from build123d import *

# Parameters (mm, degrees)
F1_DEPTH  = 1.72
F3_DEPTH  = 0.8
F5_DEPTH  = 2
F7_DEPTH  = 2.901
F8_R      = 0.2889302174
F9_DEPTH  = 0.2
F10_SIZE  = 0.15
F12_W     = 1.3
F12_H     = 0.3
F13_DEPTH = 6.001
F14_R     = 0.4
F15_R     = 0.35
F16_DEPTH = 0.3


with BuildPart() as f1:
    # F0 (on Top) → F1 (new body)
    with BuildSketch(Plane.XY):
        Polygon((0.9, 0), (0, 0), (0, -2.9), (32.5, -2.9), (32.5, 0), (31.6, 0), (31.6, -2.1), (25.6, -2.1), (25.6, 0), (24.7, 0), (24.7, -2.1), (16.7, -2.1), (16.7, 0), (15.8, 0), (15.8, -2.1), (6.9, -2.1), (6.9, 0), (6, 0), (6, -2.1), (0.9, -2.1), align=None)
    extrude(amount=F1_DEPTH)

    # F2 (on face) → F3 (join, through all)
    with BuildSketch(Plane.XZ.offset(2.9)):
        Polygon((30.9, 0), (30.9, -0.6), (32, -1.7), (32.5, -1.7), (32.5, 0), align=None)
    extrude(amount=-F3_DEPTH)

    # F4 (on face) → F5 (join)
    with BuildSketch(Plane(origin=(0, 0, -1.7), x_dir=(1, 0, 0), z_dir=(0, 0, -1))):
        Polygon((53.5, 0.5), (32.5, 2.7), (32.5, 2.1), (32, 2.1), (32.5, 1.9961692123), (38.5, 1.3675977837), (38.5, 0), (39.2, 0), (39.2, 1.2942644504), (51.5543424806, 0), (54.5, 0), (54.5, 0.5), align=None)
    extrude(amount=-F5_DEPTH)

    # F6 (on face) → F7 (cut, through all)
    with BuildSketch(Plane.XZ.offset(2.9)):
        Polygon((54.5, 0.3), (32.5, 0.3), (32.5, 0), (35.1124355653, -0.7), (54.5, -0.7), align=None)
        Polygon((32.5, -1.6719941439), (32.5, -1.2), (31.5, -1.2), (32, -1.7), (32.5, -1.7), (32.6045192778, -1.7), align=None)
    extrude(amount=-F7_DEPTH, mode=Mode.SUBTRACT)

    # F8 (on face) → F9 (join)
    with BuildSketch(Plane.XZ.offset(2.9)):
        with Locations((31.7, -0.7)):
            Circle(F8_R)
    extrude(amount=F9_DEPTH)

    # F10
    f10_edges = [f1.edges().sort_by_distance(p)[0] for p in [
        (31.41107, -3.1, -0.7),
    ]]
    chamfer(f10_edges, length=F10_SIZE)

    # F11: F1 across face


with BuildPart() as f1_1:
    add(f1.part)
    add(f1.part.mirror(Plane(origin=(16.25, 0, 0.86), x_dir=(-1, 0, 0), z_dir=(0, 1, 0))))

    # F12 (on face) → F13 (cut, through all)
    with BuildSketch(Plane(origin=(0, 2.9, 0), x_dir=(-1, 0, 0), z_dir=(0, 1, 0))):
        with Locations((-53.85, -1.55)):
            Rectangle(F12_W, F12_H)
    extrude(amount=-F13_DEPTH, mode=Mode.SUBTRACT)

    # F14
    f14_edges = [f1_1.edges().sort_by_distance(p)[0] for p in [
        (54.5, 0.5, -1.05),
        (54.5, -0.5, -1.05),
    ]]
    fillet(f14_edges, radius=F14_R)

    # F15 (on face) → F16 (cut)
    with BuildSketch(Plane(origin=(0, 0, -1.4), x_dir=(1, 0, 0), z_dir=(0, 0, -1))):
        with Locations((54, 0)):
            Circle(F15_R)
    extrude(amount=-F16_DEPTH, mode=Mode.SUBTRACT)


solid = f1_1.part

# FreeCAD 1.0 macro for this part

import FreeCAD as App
import Part
import Sketcher
Q = App.Units.Quantity


def edges_at(feature, points):
    """Names of the edges that pass closest to the given points."""
    edges = feature.Shape.Edges
    near = lambda p: min(range(len(edges)), key=lambda i: edges[i].distToShape(Part.Vertex(*p))[0])
    return sorted({f"Edge{near(p) + 1}" for p in points})


def add_polygon(sketch, points):
    """Adds a closed chain of lines whose ends are joined by coincident constraints."""
    first, n = sketch.GeometryCount, len(points)
    for a, b in zip(points, points[1:] + points[:1]):
        sketch.addGeometry(Part.LineSegment(App.Vector(*a, 0), App.Vector(*b, 0)), False)
    for i in range(n):
        sketch.addConstraint(Sketcher.Constraint("Coincident", first + i, 2, first + (i + 1) % n, 1))

doc = App.newDocument("Part")
body = doc.addObject("PartDesign::Body", "Body")

# Sketch on XY plane
sketch1 = body.newObject("Sketcher::SketchObject", "Sketch")
sketch1.AttachmentSupport = (doc.getObject("XY_Plane"), [""])
sketch1.MapMode = "FlatFace"
add_polygon(sketch1, [(0.9, 0), (0, 0), (0, -2.9), (32.5, -2.9), (32.5, 0), (31.6, 0), (31.6, -2.1), (25.6, -2.1), (25.6, 0), (24.7, 0), (24.7, -2.1), (16.7, -2.1), (16.7, 0), (15.8, 0), (15.8, -2.1), (6.9, -2.1), (6.9, 0), (6, 0), (6, -2.1), (0.9, -2.1)])  # lines 0-19
sketch1.addConstraint([
    Sketcher.Constraint("Horizontal", 0),
    Sketcher.Constraint("Vertical", 1),
    Sketcher.Constraint("Horizontal", 2),
    Sketcher.Constraint("Vertical", 3),
    Sketcher.Constraint("Horizontal", 4),
    Sketcher.Constraint("Vertical", 5),
    Sketcher.Constraint("Horizontal", 6),
    Sketcher.Constraint("Vertical", 7),
    Sketcher.Constraint("Horizontal", 8),
    Sketcher.Constraint("Vertical", 9),
    Sketcher.Constraint("Horizontal", 10),
    Sketcher.Constraint("Vertical", 11),
    Sketcher.Constraint("Horizontal", 12),
    Sketcher.Constraint("Vertical", 13),
    Sketcher.Constraint("Horizontal", 14),
    Sketcher.Constraint("Vertical", 15),
    Sketcher.Constraint("Horizontal", 16),
    Sketcher.Constraint("Vertical", 17),
    Sketcher.Constraint("Horizontal", 18),
    Sketcher.Constraint("Vertical", 19),
    Sketcher.Constraint("Coincident", 0, 2, -1, 1),
    Sketcher.Constraint("PointOnObject", 3, 2, -1),
    Sketcher.Constraint("PointOnObject", 7, 2, -1),
    Sketcher.Constraint("PointOnObject", 11, 2, -1),
    Sketcher.Constraint("PointOnObject", 15, 2, -1),
    Sketcher.Constraint("Horizontal", 6, 2, 9, 2),
    Sketcher.Constraint("Horizontal", 10, 2, 13, 2),
    Sketcher.Constraint("Horizontal", 14, 2, 17, 2),
    Sketcher.Constraint("Equal", 0, 4),
    Sketcher.Constraint("Equal", 4, 8),
    Sketcher.Constraint("Equal", 8, 12),
    Sketcher.Constraint("Equal", 12, 16),
    Sketcher.Constraint("DistanceX", 6, 2, 6, 1, 6.0),
    Sketcher.Constraint("DistanceX", 10, 2, 10, 1, 8.0),
    Sketcher.Constraint("DistanceX", 0, 2, 0, 1, 0.9),
    Sketcher.Constraint("DistanceX", 2, 1, 2, 2, 32.5),
    Sketcher.Constraint("DistanceX", 14, 2, 14, 1, 8.9),
    Sketcher.Constraint("DistanceY", 1, 2, 1, 1, 2.9),
    Sketcher.Constraint("DistanceY", 5, 2, 5, 1, 2.1),
])
pad1 = body.newObject("PartDesign::Pad", "Pad")
pad1.Profile = sketch1
pad1.Length = 1.72

# Sketch on XZ plane
sketch2 = body.newObject("Sketcher::SketchObject", "Sketch001")
sketch2.AttachmentSupport = (doc.getObject("XZ_Plane"), [""])
sketch2.MapMode = "FlatFace"
sketch2.AttachmentOffset = App.Placement(App.Vector(0, 0, 2.9), App.Rotation())
add_polygon(sketch2, [(30.9, 0), (30.9, -0.6), (32, -1.7), (32.5, -1.7), (32.5, 0)])  # lines 0-4
sketch2.addConstraint([
    Sketcher.Constraint("Vertical", 0),
    Sketcher.Constraint("Horizontal", 2),
    Sketcher.Constraint("Vertical", 3),
    Sketcher.Constraint("Horizontal", 4),
    Sketcher.Constraint("PointOnObject", 3, 2, -1),
    Sketcher.Constraint("Angle", 1, Q("-45 deg")),
    Sketcher.Constraint("DistanceX", 2, 1, 2, 2, 0.5),
    Sketcher.Constraint("DistanceX", 4, 2, 4, 1, 1.6),
    Sketcher.Constraint("DistanceY", 0, 2, 0, 1, 0.6),
    Sketcher.Constraint("DistanceX", -1, 1, 1, 2, 32.0),
])
pad2 = body.newObject("PartDesign::Pad", "Pad001")
pad2.Profile = sketch2
pad2.Length = 0.8
pad2.Reversed = True

# Sketch on XY plane
sketch3 = body.newObject("Sketcher::SketchObject", "Sketch002")
sketch3.AttachmentSupport = (doc.getObject("XY_Plane"), [""])
sketch3.MapMode = "FlatFace"
sketch3.AttachmentOffset = App.Placement(App.Vector(0, 0, -1.7), App.Rotation())
add_polygon(sketch3, [(53.5, -0.5), (32.5, -2.7), (32.5, -2.1), (32, -2.1), (32.5, -2), (38.5, -1.4), (38.5, 0), (39.2, 0), (39.2, -1.3), (51.6, 0), (54.5, 0), (54.5, -0.5)])  # lines 0-11
sketch3.addConstraint([
    Sketcher.Constraint("Vertical", 1),
    Sketcher.Constraint("Horizontal", 2),
    Sketcher.Constraint("Vertical", 5),
    Sketcher.Constraint("Horizontal", 6),
    Sketcher.Constraint("Vertical", 7),
    Sketcher.Constraint("Horizontal", 9),
    Sketcher.Constraint("Vertical", 10),
    Sketcher.Constraint("Horizontal", 11),
    Sketcher.Constraint("PointOnObject", 5, 2, -1),
    Sketcher.Constraint("PointOnObject", 8, 2, -1),
    Sketcher.Constraint("Parallel", 0, 4),
    Sketcher.Constraint("Parallel", 4, 8),
    Sketcher.Constraint("Vertical", 1, 2, 3, 2),
    Sketcher.Constraint("Equal", 2, 10),
    Sketcher.Constraint("DistanceX", 11, 2, 11, 1, 1.0),
    Sketcher.Constraint("DistanceX", 2, 2, 2, 1, 0.5),
    Sketcher.Constraint("DistanceX", 6, 1, 6, 2, 0.7),
    Sketcher.Constraint("DistanceY", 1, 1, 1, 2, 0.6),
    Sketcher.Constraint("DistanceX", -1, 1, 2, 2, 32.0),
    Sketcher.Constraint("DistanceX", 3, 2, 4, 2, 6.0),
    Sketcher.Constraint("DistanceX", 5, 2, 9, 2, 16.0),
    Sketcher.Constraint("DistanceY", 0, 2, -1, 1, 2.7),
    Sketcher.Constraint("DistanceX", 9, 1, 9, 2, 2.945658),
    Sketcher.Constraint("DistanceY", 5, 1, 5, 2, 1.367598),
])
pad3 = body.newObject("PartDesign::Pad", "Pad002")
pad3.Profile = sketch3
pad3.Length = 2

# Sketch on XZ plane
sketch4 = body.newObject("Sketcher::SketchObject", "Sketch003")
sketch4.AttachmentSupport = (doc.getObject("XZ_Plane"), [""])
sketch4.MapMode = "FlatFace"
sketch4.AttachmentOffset = App.Placement(App.Vector(0, 0, 2.9), App.Rotation())
add_polygon(sketch4, [(54.5, 0.3), (32.5, 0.3), (32.5, 0), (35.11, -0.7), (54.5, -0.7)])  # lines 0-4
add_polygon(sketch4, [(32.5, -1.67), (32.5, -1.2), (31.5, -1.2), (32, -1.7), (32.6, -1.7)])  # lines 5-9
sketch4.addConstraint([
    Sketcher.Constraint("Horizontal", 0),
    Sketcher.Constraint("Vertical", 1),
    Sketcher.Constraint("Horizontal", 3),
    Sketcher.Constraint("Vertical", 4),
    Sketcher.Constraint("Vertical", 5),
    Sketcher.Constraint("Horizontal", 6),
    Sketcher.Constraint("Horizontal", 8),
    Sketcher.Constraint("PointOnObject", 1, 2, -1),
    Sketcher.Constraint("Parallel", 2, 9),
    Sketcher.Constraint("Vertical", 1, 2, 5, 2),
    Sketcher.Constraint("Equal", 6, 4),
    Sketcher.Constraint("DistanceX", 0, 2, 0, 1, 22.0),
    Sketcher.Constraint("DistanceX", 6, 2, 6, 1, 1.0),
    Sketcher.Constraint("Angle", 2, Q("-15 deg")),
    Sketcher.Constraint("Angle", 7, Q("-45 deg")),
    Sketcher.Constraint("DistanceY", 1, 2, 1, 1, 0.3),
    Sketcher.Constraint("DistanceX", -1, 1, 7, 2, 32.0),
    Sketcher.Constraint("DistanceY", 7, 2, 0, 2, 2.0),
    Sketcher.Constraint("DistanceX", -1, 1, 0, 2, 32.5),
    Sketcher.Constraint("DistanceX", 8, 1, 8, 2, 0.604519),
])
pocket1 = body.newObject("PartDesign::Pocket", "Pocket")
pocket1.Profile = sketch4
pocket1.Type = "ThroughAll"

# Sketch on XZ plane
sketch5 = body.newObject("Sketcher::SketchObject", "Sketch004")
sketch5.AttachmentSupport = (doc.getObject("XZ_Plane"), [""])
sketch5.MapMode = "FlatFace"
sketch5.AttachmentOffset = App.Placement(App.Vector(0, 0, 2.9), App.Rotation())
sketch5.addGeometry(Part.Circle(App.Vector(31.7, -0.7, 0), App.Vector(0, 0, 1), 0.29), False)
sketch5.addConstraint([
    Sketcher.Constraint("DistanceX", -1, 1, 0, 3, 31.7),
    Sketcher.Constraint("DistanceY", 0, 3, -1, 1, 0.7),
    Sketcher.Constraint("Diameter", 0, 0.57786),
])
pad4 = body.newObject("PartDesign::Pad", "Pad003")
pad4.Profile = sketch5
pad4.Length = 0.2
doc.recompute()

chamfer = body.newObject("PartDesign::Chamfer", "Chamfer")
chamfer.Base = (pad4, edges_at(pad4, [(31.411, -3.1, -0.7)]))
chamfer.Size = 0.15
body2 = doc.addObject("PartDesign::Body", "Body001")
doc.recompute()

body2.BaseFeature = body
doc.recompute()

mirroring = doc.addObject("Part::Mirroring", "Mirroring")
mirroring.Source = body
mirroring.Base = App.Vector(16.25, 0, 0.86)
mirroring.Normal = App.Vector(0, 1, 0)
body3 = doc.addObject("PartDesign::Body", "Body002")
body3.BaseFeature = mirroring
boolean = body2.newObject("PartDesign::Boolean", "Boolean")
boolean.Type = "Fuse"
boolean.addObjects([body3])
doc.recompute()

# Sketch on XZ plane
sketch6 = body2.newObject("Sketcher::SketchObject", "Sketch005")
sketch6.AttachmentSupport = (doc.getObject("XZ_Plane001"), [""])
sketch6.MapMode = "FlatFace"
sketch6.AttachmentOffset = App.Placement(App.Vector(0, 0, -2.9), App.Rotation())
add_polygon(sketch6, [(54.5, -1.4), (54.5, -1.7), (53.2, -1.7), (53.2, -1.4)])  # lines 0-3
sketch6.addConstraint([
    Sketcher.Constraint("Vertical", 0),
    Sketcher.Constraint("Horizontal", 1),
    Sketcher.Constraint("Vertical", 2),
    Sketcher.Constraint("Horizontal", 3),
    Sketcher.Constraint("DistanceX", 1, 2, 1, 1, 1.3),
    Sketcher.Constraint("DistanceY", 0, 2, 0, 1, 0.3),
    Sketcher.Constraint("DistanceX", -1, 1, 0, 2, 54.5),
    Sketcher.Constraint("DistanceY", 0, 2, -1, 1, 1.7),
])
pocket2 = body2.newObject("PartDesign::Pocket", "Pocket001")
pocket2.Profile = sketch6
pocket2.Type = "ThroughAll"
pocket2.Reversed = True
doc.recompute()

fillet = body2.newObject("PartDesign::Fillet", "Fillet")
fillet.Base = (pocket2, edges_at(pocket2, [(54.5, 0.5, -1.05), (54.5, -0.5, -1.05)]))
fillet.Radius = 0.4

# Sketch on XY plane
sketch7 = body2.newObject("Sketcher::SketchObject", "Sketch006")
sketch7.AttachmentSupport = (doc.getObject("XY_Plane001"), [""])
sketch7.MapMode = "FlatFace"
sketch7.AttachmentOffset = App.Placement(App.Vector(0, 0, -1.4), App.Rotation())
sketch7.addGeometry(Part.Circle(App.Vector(54, 0, 0), App.Vector(0, 0, 1), 0.35), False)
sketch7.addConstraint([
    Sketcher.Constraint("PointOnObject", 0, 3, -1),
    Sketcher.Constraint("Diameter", 0, 0.7),
    Sketcher.Constraint("DistanceX", -1, 1, 0, 3, 54.0),
])
pocket3 = body2.newObject("PartDesign::Pocket", "Pocket002")
pocket3.Profile = sketch7
pocket3.Length = 0.3
pocket3.Reversed = True
mirroring.Visibility = False

doc.recompute()
